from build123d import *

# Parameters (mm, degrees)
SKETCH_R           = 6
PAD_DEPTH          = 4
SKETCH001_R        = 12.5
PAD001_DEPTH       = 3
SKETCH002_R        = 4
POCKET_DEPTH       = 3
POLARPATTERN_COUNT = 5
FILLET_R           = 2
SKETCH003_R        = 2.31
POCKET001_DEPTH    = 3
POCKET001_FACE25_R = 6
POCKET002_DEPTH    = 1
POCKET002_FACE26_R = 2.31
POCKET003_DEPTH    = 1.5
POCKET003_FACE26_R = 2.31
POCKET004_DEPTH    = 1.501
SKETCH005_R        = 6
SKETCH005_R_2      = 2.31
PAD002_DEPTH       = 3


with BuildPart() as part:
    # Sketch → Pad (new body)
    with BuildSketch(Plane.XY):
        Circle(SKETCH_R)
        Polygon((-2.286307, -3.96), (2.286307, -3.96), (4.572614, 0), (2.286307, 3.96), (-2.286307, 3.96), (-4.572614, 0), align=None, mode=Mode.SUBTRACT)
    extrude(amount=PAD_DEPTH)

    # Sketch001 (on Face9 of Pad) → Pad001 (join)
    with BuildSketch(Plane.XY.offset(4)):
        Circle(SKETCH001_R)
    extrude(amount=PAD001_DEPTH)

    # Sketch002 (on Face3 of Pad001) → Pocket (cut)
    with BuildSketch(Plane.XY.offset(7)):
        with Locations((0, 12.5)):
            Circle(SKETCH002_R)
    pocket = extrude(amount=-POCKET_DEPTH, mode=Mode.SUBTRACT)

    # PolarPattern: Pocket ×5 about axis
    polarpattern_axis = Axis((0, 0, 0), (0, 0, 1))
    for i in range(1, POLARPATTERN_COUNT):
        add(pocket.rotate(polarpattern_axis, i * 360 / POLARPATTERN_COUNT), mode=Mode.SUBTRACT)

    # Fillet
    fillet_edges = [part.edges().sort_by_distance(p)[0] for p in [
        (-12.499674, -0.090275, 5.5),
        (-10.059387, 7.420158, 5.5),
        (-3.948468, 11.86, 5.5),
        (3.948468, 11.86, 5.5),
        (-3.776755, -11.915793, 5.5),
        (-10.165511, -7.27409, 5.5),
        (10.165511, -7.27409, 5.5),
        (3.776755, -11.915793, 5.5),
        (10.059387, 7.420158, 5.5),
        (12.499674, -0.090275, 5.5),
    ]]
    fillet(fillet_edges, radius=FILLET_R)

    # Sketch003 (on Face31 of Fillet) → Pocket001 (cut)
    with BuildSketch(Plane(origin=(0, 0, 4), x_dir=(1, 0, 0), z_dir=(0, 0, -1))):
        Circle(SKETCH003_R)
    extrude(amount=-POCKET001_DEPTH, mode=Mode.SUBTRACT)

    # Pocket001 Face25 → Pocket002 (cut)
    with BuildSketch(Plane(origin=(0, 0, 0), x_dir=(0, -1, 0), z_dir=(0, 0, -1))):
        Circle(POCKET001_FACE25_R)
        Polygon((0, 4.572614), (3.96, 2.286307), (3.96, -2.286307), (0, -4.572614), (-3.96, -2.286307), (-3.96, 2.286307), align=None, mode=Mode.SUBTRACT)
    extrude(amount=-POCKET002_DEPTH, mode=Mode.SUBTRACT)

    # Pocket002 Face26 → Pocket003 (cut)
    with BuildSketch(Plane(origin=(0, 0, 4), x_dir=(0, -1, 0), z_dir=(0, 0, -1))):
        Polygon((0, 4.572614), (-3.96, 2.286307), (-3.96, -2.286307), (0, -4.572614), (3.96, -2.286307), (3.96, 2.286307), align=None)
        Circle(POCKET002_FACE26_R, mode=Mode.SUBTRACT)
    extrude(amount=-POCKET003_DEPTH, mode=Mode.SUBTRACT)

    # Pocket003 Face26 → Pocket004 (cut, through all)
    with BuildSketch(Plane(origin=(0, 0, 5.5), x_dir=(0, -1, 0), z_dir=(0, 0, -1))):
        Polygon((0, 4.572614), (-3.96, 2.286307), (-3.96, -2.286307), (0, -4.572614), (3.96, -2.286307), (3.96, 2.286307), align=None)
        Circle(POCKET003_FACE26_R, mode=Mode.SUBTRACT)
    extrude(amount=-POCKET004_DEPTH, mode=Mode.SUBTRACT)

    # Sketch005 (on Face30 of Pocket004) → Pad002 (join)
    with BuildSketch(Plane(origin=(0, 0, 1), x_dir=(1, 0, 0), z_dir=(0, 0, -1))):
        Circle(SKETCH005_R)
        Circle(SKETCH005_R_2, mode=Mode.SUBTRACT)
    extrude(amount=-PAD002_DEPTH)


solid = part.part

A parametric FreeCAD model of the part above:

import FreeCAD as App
import Part
import Sketcher

V = App.Vector
Q = App.Units.Quantity


def edges_at(feature, points):
    """Names of the edges that pass closest to the given points."""
    edges = feature.Shape.Edges
    near = lambda p: min(range(len(edges)), key=lambda i: edges[i].distToShape(Part.Vertex(*p))[0])
    return sorted({f"Edge{near(p) + 1}" for p in points})

doc = App.newDocument("Part")
body = doc.addObject("PartDesign::Body", "Body")

sketch1 = body.newObject("Sketcher::SketchObject", "Sketch")
sketch1.AttachmentSupport = (doc.getObject("XY_Plane"), [""])
sketch1.MapMode = "FlatFace"
sketch1.addGeometry(Part.Circle(V(0, 0, 0), V(0, 0, 1), 6), False)
sketch1.addGeometry(Part.LineSegment(V(2.286307, -3.96, 0), V(-2.286307, -3.96, 0)), False)
sketch1.addGeometry(Part.LineSegment(V(-2.286307, -3.96, 0), V(-4.572614, 0, 0)), False)
sketch1.addGeometry(Part.LineSegment(V(-4.572614, 0, 0), V(-2.286307, 3.96, 0)), False)
sketch1.addGeometry(Part.LineSegment(V(-2.286307, 3.96, 0), V(2.286307, 3.96, 0)), False)
sketch1.addGeometry(Part.LineSegment(V(2.286307, 3.96, 0), V(4.572614, 0, 0)), False)
sketch1.addGeometry(Part.LineSegment(V(4.572614, 0, 0), V(2.286307, -3.96, 0)), False)
sketch1.addConstraint(Sketcher.Constraint("Coincident", 1, 2, 2, 1))
sketch1.addConstraint(Sketcher.Constraint("Coincident", 2, 2, 3, 1))
sketch1.addConstraint(Sketcher.Constraint("Coincident", 3, 2, 4, 1))
sketch1.addConstraint(Sketcher.Constraint("Coincident", 4, 2, 5, 1))
sketch1.addConstraint(Sketcher.Constraint("Coincident", 5, 2, 6, 1))
sketch1.addConstraint(Sketcher.Constraint("Coincident", 6, 2, 1, 1))
sketch1.addConstraint(Sketcher.Constraint("Horizontal", 1))
sketch1.addConstraint(Sketcher.Constraint("Horizontal", 4))
sketch1.addConstraint(Sketcher.Constraint("Coincident", 0, 3, -1, 1))
sketch1.addConstraint(Sketcher.Constraint("Symmetric", 1, 2, 4, 2, -1, 1))
sketch1.addConstraint(Sketcher.Constraint("Symmetric", 2, 2, 5, 2, -1, 1))
sketch1.addConstraint(Sketcher.Constraint("PointOnObject", 2, 2, -1))
sketch1.addConstraint(Sketcher.Constraint("Parallel", 3, 6))
sketch1.addConstraint(Sketcher.Constraint("Vertical", 1, 2, 3, 2))
sketch1.addConstraint(Sketcher.Constraint("Diameter", 0, Q("12 mm")))
sketch1.addConstraint(Sketcher.Constraint("Angle", 2, Q("119.999999 deg")))
sketch1.addConstraint(Sketcher.Constraint("DistanceY", 1, 2, -1, 1, Q("3.96 mm")))
sketch1.addConstraint(Sketcher.Constraint("DistanceX", 1, 2, 1, 1, Q("4.572614 mm")))
pad1 = body.newObject("PartDesign::Pad", "Pad")
pad1.Profile = sketch1
pad1.Length = 4

sketch2 = body.newObject("Sketcher::SketchObject", "Sketch001")
sketch2.AttachmentSupport = (doc.getObject("XY_Plane"), [""])
sketch2.MapMode = "FlatFace"
sketch2.AttachmentOffset = App.Placement(V(0, 0, 4), App.Rotation())
sketch2.addGeometry(Part.Circle(V(0, 0, 0), V(0, 0, 1), 12.5), False)
sketch2.addConstraint(Sketcher.Constraint("Coincident", 0, 3, -1, 1))
sketch2.addConstraint(Sketcher.Constraint("Diameter", 0, Q("25 mm")))
pad2 = body.newObject("PartDesign::Pad", "Pad001")
pad2.Profile = sketch2
pad2.Length = 3

sketch3 = body.newObject("Sketcher::SketchObject", "Sketch002")
sketch3.AttachmentSupport = (doc.getObject("XY_Plane"), [""])
sketch3.MapMode = "FlatFace"
sketch3.AttachmentOffset = App.Placement(V(0, 0, 7), App.Rotation())
sketch3.addGeometry(Part.Circle(V(0, 12.5, 0), V(0, 0, 1), 4), False)
sketch3.addConstraint(Sketcher.Constraint("PointOnObject", 0, 3, -2))
sketch3.addConstraint(Sketcher.Constraint("Diameter", 0, Q("8 mm")))
sketch3.addConstraint(Sketcher.Constraint("DistanceY", -1, 1, 0, 3, Q("12.5 mm")))
pocket1 = body.newObject("PartDesign::Pocket", "Pocket")
pocket1.Profile = sketch3
pocket1.Length = 3
doc.recompute()

polarpattern = body.newObject("PartDesign::PolarPattern", "PolarPattern")
polarpattern.Originals = [pocket1]
polarpattern.Axis = (doc.getObject("Z_Axis"), [""])
polarpattern.Angle = 360
polarpattern.Occurrences = 5
body.Tip = polarpattern
doc.recompute()

fillet = body.newObject("PartDesign::Fillet", "Fillet")
fillet.Base = (polarpattern, edges_at(polarpattern, [
    (-12.5, -0.09, 5.5),
    (-10.059, 7.42, 5.5),
    (-3.948, 11.86, 5.5),
    (3.948, 11.86, 5.5),
    (-3.777, -11.916, 5.5),
    (-10.166, -7.274, 5.5),
    (10.166, -7.274, 5.5),
    (3.777, -11.916, 5.5),
    (10.059, 7.42, 5.5),
    (12.5, -0.09, 5.5),
]))
fillet.Radius = 2

sketch4 = body.newObject("Sketcher::SketchObject", "Sketch003")
sketch4.AttachmentSupport = (doc.getObject("XY_Plane"), [""])
sketch4.MapMode = "FlatFace"
sketch4.AttachmentOffset = App.Placement(V(0, 0, 4), App.Rotation())
sketch4.addGeometry(Part.Circle(V(0, 0, 0), V(0, 0, 1), 2.31), False)
sketch4.addConstraint(Sketcher.Constraint("Coincident", 0, 3, -1, 1))
sketch4.addConstraint(Sketcher.Constraint("Diameter", 0, Q("4.62 mm")))
pocket2 = body.newObject("PartDesign::Pocket", "Pocket001")
pocket2.Profile = sketch4
pocket2.Length = 3
pocket2.Reversed = True

sketch5 = body.newObject("Sketcher::SketchObject", "Sketch004")
sketch5.AttachmentSupport = (doc.getObject("XY_Plane"), [""])
sketch5.MapMode = "FlatFace"
sketch5.addGeometry(Part.Circle(V(0, 0, 0), V(0, 0, 1), 6), False)
sketch5.addGeometry(Part.LineSegment(V(-2.286307, 3.96, 0), V(-4.572614, 0, 0)), False)
sketch5.addGeometry(Part.LineSegment(V(-4.572614, 0, 0), V(-2.286307, -3.96, 0)), False)
sketch5.addGeometry(Part.LineSegment(V(-2.286307, -3.96, 0), V(2.286307, -3.96, 0)), False)
sketch5.addGeometry(Part.LineSegment(V(2.286307, -3.96, 0), V(4.572614, 0, 0)), False)
sketch5.addGeometry(Part.LineSegment(V(4.572614, 0, 0), V(2.286307, 3.96, 0)), False)
sketch5.addGeometry(Part.LineSegment(V(2.286307, 3.96, 0), V(-2.286307, 3.96, 0)), False)
sketch5.addConstraint(Sketcher.Constraint("Coincident", 1, 2, 2, 1))
sketch5.addConstraint(Sketcher.Constraint("Coincident", 2, 2, 3, 1))
sketch5.addConstraint(Sketcher.Constraint("Coincident", 3, 2, 4, 1))
sketch5.addConstraint(Sketcher.Constraint("Coincident", 4, 2, 5, 1))
sketch5.addConstraint(Sketcher.Constraint("Coincident", 5, 2, 6, 1))
sketch5.addConstraint(Sketcher.Constraint("Coincident", 6, 2, 1, 1))
sketch5.addConstraint(Sketcher.Constraint("Horizontal", 3))
sketch5.addConstraint(Sketcher.Constraint("Horizontal", 6))
sketch5.addConstraint(Sketcher.Constraint("Coincident", 0, 3, -1, 1))
sketch5.addConstraint(Sketcher.Constraint("Symmetric", 1, 2, 4, 2, -1, 1))
sketch5.addConstraint(Sketcher.Constraint("Symmetric", 2, 2, 5, 2, -1, 1))
sketch5.addConstraint(Sketcher.Constraint("PointOnObject", 1, 2, -1))
sketch5.addConstraint(Sketcher.Constraint("Parallel", 1, 4))
sketch5.addConstraint(Sketcher.Constraint("Vertical", 3, 2, 5, 2))
sketch5.addConstraint(Sketcher.Constraint("Diameter", 0, Q("12 mm")))
sketch5.addConstraint(Sketcher.Constraint("Angle", 1, Q("-119.999999 deg")))
sketch5.addConstraint(Sketcher.Constraint("DistanceY", 2, 2, -1, 1, Q("3.96 mm")))
sketch5.addConstraint(Sketcher.Constraint("DistanceX", 3, 1, 3, 2, Q("4.572614 mm")))
pocket3 = body.newObject("PartDesign::Pocket", "Pocket002")
pocket3.Profile = sketch5
pocket3.Length = 1
pocket3.Reversed = True

sketch6 = body.newObject("Sketcher::SketchObject", "Sketch005")
sketch6.AttachmentSupport = (doc.getObject("XY_Plane"), [""])
sketch6.MapMode = "FlatFace"
sketch6.AttachmentOffset = App.Placement(V(0, 0, 4), App.Rotation())
sketch6.addGeometry(Part.LineSegment(V(-4.572614, 0, 0), V(-2.286307, 3.96, 0)), False)
sketch6.addGeometry(Part.LineSegment(V(-2.286307, 3.96, 0), V(2.286307, 3.96, 0)), False)
sketch6.addGeometry(Part.LineSegment(V(2.286307, 3.96, 0), V(4.572614, 0, 0)), False)
sketch6.addGeometry(Part.LineSegment(V(4.572614, 0, 0), V(2.286307, -3.96, 0)), False)
sketch6.addGeometry(Part.LineSegment(V(2.286307, -3.96, 0), V(-2.286307, -3.96, 0)), False)
sketch6.addGeometry(Part.LineSegment(V(-2.286307, -3.96, 0), V(-4.572614, 0, 0)), False)
sketch6.addGeometry(Part.Circle(V(0, 0, 0), V(0, 0, 1), 2.31), False)
sketch6.addConstraint(Sketcher.Constraint("Coincident", 0, 2, 1, 1))
sketch6.addConstraint(Sketcher.Constraint("Coincident", 1, 2, 2, 1))
sketch6.addConstraint(Sketcher.Constraint("Coincident", 2, 2, 3, 1))
sketch6.addConstraint(Sketcher.Constraint("Coincident", 3, 2, 4, 1))
sketch6.addConstraint(Sketcher.Constraint("Coincident", 4, 2, 5, 1))
sketch6.addConstraint(Sketcher.Constraint("Coincident", 5, 2, 0, 1))
sketch6.addConstraint(Sketcher.Constraint("Horizontal", 1))
sketch6.addConstraint(Sketcher.Constraint("Horizontal", 4))
sketch6.addConstraint(Sketcher.Constraint("Coincident", 6, 3, -1, 1))
sketch6.addConstraint(Sketcher.Constraint("Symmetric", 0, 2, 3, 2, -1, 1))
sketch6.addConstraint(Sketcher.Constraint("Symmetric", 2, 2, 5, 2, -1, 1))
sketch6.addConstraint(Sketcher.Constraint("PointOnObject", 2, 2, -1))
sketch6.addConstraint(Sketcher.Constraint("Parallel", 2, 5))
sketch6.addConstraint(Sketcher.Constraint("Vertical", 1, 2, 3, 2))
sketch6.addConstraint(Sketcher.Constraint("Diameter", 6, Q("4.62 mm")))
sketch6.addConstraint(Sketcher.Constraint("Angle", 0, Q("60.000001 deg")))
sketch6.addConstraint(Sketcher.Constraint("DistanceY", -1, 1, 0, 2, Q("3.96 mm")))
sketch6.addConstraint(Sketcher.Constraint("DistanceX", 1, 1, 1, 2, Q("4.572614 mm")))
pocket4 = body.newObject("PartDesign::Pocket", "Pocket003")
pocket4.Profile = sketch6
pocket4.Length = 1.5
pocket4.Reversed = True

sketch7 = body.newObject("Sketcher::SketchObject", "Sketch006")
sketch7.AttachmentSupport = (doc.getObject("XY_Plane"), [""])
sketch7.MapMode = "FlatFace"
sketch7.AttachmentOffset = App.Placement(V(0, 0, 5.5), App.Rotation())
sketch7.addGeometry(Part.LineSegment(V(-4.572614, 0, 0), V(-2.286307, 3.96, 0)), False)
sketch7.addGeometry(Part.LineSegment(V(-2.286307, 3.96, 0), V(2.286307, 3.96, 0)), False)
sketch7.addGeometry(Part.LineSegment(V(2.286307, 3.96, 0), V(4.572614, 0, 0)), False)
sketch7.addGeometry(Part.LineSegment(V(4.572614, 0, 0), V(2.286307, -3.96, 0)), False)
sketch7.addGeometry(Part.LineSegment(V(2.286307, -3.96, 0), V(-2.286307, -3.96, 0)), False)
sketch7.addGeometry(Part.LineSegment(V(-2.286307, -3.96, 0), V(-4.572614, 0, 0)), False)
sketch7.addGeometry(Part.Circle(V(0, 0, 0), V(0, 0, 1), 2.31), False)
sketch7.addConstraint(Sketcher.Constraint("Coincident", 0, 2, 1, 1))
sketch7.addConstraint(Sketcher.Constraint("Coincident", 1, 2, 2, 1))
sketch7.addConstraint(Sketcher.Constraint("Coincident", 2, 2, 3, 1))
sketch7.addConstraint(Sketcher.Constraint("Coincident", 3, 2, 4, 1))
sketch7.addConstraint(Sketcher.Constraint("Coincident", 4, 2, 5, 1))
sketch7.addConstraint(Sketcher.Constraint("Coincident", 5, 2, 0, 1))
sketch7.addConstraint(Sketcher.Constraint("Horizontal", 1))
sketch7.addConstraint(Sketcher.Constraint("Horizontal", 4))
sketch7.addConstraint(Sketcher.Constraint("Coincident", 6, 3, -1, 1))
sketch7.addConstraint(Sketcher.Constraint("Symmetric", 0, 2, 3, 2, -1, 1))
sketch7.addConstraint(Sketcher.Constraint("Symmetric", 2, 2, 5, 2, -1, 1))
sketch7.addConstraint(Sketcher.Constraint("PointOnObject", 2, 2, -1))
sketch7.addConstraint(Sketcher.Constraint("Parallel", 2, 5))
sketch7.addConstraint(Sketcher.Constraint("Vertical", 1, 2, 3, 2))
sketch7.addConstraint(Sketcher.Constraint("Diameter", 6, Q("4.62 mm")))
sketch7.addConstraint(Sketcher.Constraint("Angle", 0, Q("60.000001 deg")))
sketch7.addConstraint(Sketcher.Constraint("DistanceY", -1, 1, 0, 2, Q("3.96 mm")))
sketch7.addConstraint(Sketcher.Constraint("DistanceX", 1, 1, 1, 2, Q("4.572614 mm")))
pocket5 = body.newObject("PartDesign::Pocket", "Pocket004")
pocket5.Profile = sketch7
pocket5.Type = "ThroughAll"
pocket5.Reversed = True

sketch8 = body.newObject("Sketcher::SketchObject", "Sketch007")
sketch8.AttachmentSupport = (doc.getObject("XY_Plane"), [""])
sketch8.MapMode = "FlatFace"
sketch8.AttachmentOffset = App.Placement(V(0, 0, 1), App.Rotation())
sketch8.addGeometry(Part.Circle(V(0, 0, 0), V(0, 0, 1), 6), False)
sketch8.addGeometry(Part.Circle(V(0, 0, 0), V(0, 0, 1), 2.31), False)
sketch8.addConstraint(Sketcher.Constraint("Coincident", 0, 3, -1, 1))
sketch8.addConstraint(Sketcher.Constraint("Coincident", 1, 3, -1, 1))
sketch8.addConstraint(Sketcher.Constraint("Diameter", 0, Q("12 mm")))
sketch8.addConstraint(Sketcher.Constraint("Diameter", 1, Q("4.62 mm")))
pad3 = body.newObject("PartDesign::Pad", "Pad002")
pad3.Profile = sketch8
pad3.Length = 3

doc.recompute()
